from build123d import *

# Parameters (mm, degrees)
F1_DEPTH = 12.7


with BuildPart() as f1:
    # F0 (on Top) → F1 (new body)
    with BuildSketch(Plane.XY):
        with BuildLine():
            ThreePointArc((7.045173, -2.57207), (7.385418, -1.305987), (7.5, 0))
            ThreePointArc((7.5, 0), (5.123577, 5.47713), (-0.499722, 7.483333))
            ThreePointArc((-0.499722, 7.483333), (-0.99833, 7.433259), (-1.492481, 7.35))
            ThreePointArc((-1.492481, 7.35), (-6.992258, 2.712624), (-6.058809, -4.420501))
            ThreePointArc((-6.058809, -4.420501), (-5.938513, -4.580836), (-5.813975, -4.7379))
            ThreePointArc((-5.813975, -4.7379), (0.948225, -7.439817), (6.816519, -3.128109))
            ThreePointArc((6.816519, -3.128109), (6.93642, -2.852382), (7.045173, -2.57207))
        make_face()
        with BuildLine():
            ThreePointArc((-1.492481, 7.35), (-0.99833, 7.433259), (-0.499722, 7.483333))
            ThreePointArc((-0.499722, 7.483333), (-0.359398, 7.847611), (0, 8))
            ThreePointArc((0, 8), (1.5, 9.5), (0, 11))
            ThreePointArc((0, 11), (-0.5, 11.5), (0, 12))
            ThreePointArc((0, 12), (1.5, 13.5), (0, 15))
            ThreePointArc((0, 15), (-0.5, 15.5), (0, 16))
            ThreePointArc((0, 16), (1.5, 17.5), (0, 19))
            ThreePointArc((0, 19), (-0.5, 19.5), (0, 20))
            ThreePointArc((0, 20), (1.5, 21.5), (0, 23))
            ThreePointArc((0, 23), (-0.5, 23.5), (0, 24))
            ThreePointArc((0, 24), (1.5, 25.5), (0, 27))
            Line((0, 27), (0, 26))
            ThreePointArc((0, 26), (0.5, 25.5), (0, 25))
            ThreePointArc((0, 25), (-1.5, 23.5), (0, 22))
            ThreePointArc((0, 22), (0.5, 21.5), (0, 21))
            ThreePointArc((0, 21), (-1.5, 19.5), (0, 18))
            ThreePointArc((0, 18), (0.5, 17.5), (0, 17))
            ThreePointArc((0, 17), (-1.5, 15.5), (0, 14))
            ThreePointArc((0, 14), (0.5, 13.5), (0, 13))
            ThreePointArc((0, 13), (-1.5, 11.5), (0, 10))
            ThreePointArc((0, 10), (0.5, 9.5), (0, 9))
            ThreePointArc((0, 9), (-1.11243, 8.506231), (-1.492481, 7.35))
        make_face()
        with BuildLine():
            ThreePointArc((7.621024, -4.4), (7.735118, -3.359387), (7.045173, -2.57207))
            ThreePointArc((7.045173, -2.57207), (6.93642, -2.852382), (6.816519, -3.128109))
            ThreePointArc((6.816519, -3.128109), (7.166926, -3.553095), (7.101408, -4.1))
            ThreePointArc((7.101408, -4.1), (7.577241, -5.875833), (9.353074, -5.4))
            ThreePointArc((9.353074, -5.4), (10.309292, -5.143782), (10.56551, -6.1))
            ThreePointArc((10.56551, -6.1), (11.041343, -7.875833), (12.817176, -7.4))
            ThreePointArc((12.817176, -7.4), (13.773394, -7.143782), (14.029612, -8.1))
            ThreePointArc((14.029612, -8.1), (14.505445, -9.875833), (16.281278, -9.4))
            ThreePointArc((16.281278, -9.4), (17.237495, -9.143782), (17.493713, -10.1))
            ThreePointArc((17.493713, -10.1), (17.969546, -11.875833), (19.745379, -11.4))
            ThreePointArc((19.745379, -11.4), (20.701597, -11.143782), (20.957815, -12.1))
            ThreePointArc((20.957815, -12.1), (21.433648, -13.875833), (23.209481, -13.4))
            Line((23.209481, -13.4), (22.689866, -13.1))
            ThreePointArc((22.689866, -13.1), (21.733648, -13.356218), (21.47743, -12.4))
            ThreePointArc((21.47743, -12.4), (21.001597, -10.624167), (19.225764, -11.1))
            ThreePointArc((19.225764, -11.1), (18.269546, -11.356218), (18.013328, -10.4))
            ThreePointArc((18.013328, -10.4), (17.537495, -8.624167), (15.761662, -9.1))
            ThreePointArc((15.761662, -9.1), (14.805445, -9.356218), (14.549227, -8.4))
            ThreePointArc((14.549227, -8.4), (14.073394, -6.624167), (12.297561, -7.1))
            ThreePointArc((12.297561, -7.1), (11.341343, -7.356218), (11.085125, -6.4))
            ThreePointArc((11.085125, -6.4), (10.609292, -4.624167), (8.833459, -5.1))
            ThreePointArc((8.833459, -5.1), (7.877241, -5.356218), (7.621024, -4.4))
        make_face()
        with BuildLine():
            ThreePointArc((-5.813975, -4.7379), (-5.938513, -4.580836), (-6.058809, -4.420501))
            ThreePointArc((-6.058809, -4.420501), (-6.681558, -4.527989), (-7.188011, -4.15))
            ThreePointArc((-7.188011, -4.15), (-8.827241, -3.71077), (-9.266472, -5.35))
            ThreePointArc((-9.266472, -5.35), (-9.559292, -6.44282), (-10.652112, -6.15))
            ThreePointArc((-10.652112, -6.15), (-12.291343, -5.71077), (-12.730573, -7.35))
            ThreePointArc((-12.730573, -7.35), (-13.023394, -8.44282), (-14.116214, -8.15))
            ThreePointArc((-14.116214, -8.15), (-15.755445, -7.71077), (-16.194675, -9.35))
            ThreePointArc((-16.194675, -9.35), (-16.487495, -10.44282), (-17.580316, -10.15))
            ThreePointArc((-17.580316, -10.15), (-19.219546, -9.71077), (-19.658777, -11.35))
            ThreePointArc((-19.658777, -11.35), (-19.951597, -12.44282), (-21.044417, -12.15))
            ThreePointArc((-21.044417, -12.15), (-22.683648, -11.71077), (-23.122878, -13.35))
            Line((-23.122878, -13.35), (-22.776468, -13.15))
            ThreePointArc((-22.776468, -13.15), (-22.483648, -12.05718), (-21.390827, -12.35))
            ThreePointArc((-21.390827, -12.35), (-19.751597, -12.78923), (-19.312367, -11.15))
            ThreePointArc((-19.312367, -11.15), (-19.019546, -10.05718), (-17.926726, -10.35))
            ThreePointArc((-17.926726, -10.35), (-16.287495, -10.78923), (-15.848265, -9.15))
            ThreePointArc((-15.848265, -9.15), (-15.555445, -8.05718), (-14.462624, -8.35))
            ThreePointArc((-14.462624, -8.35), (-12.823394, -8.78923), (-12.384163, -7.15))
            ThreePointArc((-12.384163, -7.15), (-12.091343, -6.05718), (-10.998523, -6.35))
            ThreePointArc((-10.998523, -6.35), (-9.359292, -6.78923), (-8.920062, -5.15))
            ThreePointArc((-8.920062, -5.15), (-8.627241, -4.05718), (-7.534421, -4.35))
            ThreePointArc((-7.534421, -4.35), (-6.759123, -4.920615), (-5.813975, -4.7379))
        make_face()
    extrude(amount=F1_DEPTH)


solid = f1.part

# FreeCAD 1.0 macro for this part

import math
import FreeCAD as App
import Part
import Sketcher

V = App.Vector
Q = App.Units.Quantity

doc = App.newDocument("Part")
body = doc.addObject("PartDesign::Body", "Body")

sketch1 = body.newObject("Sketcher::SketchObject", "Sketch")
sketch1.AttachmentSupport = (doc.getObject("XY_Plane"), [""])
sketch1.MapMode = "FlatFace"
sketch1.addGeometry([
    Part.ArcOfCircle(Part.Circle(V(-0.00001, 0, 0), V(0, 0, 1), 7.50001), math.radians(-20.056235), math.radians(-0.000004)),
    Part.ArcOfCircle(Part.Circle(V(0, -0.000001, 0), V(0, 0, 1), 7.5), math.radians(0.000005), math.radians(93.820423)),
    Part.ArcOfCircle(Part.Circle(V(-0.000001, 7.500001, 0), V(0, 0, 1), 0.499999), math.radians(89.9999), math.radians(181.910367)),
    Part.ArcOfCircle(Part.Circle(V(0, 9.5, 0), V(0, 0, 1), 1.5), math.radians(-90), math.radians(90)),
    Part.ArcOfCircle(Part.Circle(V(0, 11.5, 0), V(0, 0, 1), 0.5), math.radians(90), math.radians(270)),
    Part.ArcOfCircle(Part.Circle(V(0, 13.5, 0), V(0, 0, 1), 1.5), math.radians(-90), math.radians(90)),
    Part.ArcOfCircle(Part.Circle(V(0, 15.5, 0), V(0, 0, 1), 0.5), math.radians(90), math.radians(270)),
    Part.ArcOfCircle(Part.Circle(V(0, 17.5, 0), V(0, 0, 1), 1.5), math.radians(-90), math.radians(90)),
    Part.ArcOfCircle(Part.Circle(V(0, 19.5, 0), V(0, 0, 1), 0.5), math.radians(90), math.radians(270)),
    Part.ArcOfCircle(Part.Circle(V(0, 21.5, 0), V(0, 0, 1), 1.5), math.radians(-90), math.radians(90)),
    Part.ArcOfCircle(Part.Circle(V(0, 23.5, 0), V(0, 0, 1), 0.5), math.radians(90), math.radians(270)),
    Part.ArcOfCircle(Part.Circle(V(0, 25.5, 0), V(0, 0, 1), 1.5), math.radians(-90), math.radians(90)),
    Part.LineSegment(V(0, 27, 0), V(0, 26, 0)),
    Part.ArcOfCircle(Part.Circle(V(0, 25.5, 0), V(0, 0, 1), 0.5), math.radians(-90), math.radians(90)),
    Part.ArcOfCircle(Part.Circle(V(0, 23.5, 0), V(0, 0, 1), 1.5), math.radians(90), math.radians(270)),
    Part.ArcOfCircle(Part.Circle(V(0, 21.5, 0), V(0, 0, 1), 0.5), math.radians(-90), math.radians(90)),
    Part.ArcOfCircle(Part.Circle(V(0, 19.5, 0), V(0, 0, 1), 1.5), math.radians(90), math.radians(270)),
    Part.ArcOfCircle(Part.Circle(V(0, 17.5, 0), V(0, 0, 1), 0.5), math.radians(-90), math.radians(90)),
    Part.ArcOfCircle(Part.Circle(V(0, 15.5, 0), V(0, 0, 1), 1.5), math.radians(90), math.radians(270)),
    Part.ArcOfCircle(Part.Circle(V(0, 13.5, 0), V(0, 0, 1), 0.5), math.radians(-90), math.radians(90)),
    Part.ArcOfCircle(Part.Circle(V(0, 11.5, 0), V(0, 0, 1), 1.5), math.radians(90), math.radians(270)),
    Part.ArcOfCircle(Part.Circle(V(0, 9.5, 0), V(0, 0, 1), 0.5), math.radians(-90), math.radians(90)),
    Part.ArcOfCircle(Part.Circle(V(-0.000001, 7.500001, 0), V(0, 0, 1), 1.499999), math.radians(89.999958), math.radians(185.739219)),
    Part.ArcOfCircle(Part.Circle(V(0, 0, 0), V(0, 0, 1), 7.5), math.radians(101.478337), math.radians(216.114457)),
    Part.ArcOfCircle(Part.Circle(V(-6.49519, -3.749999, 0), V(0, 0, 1), 0.800001), math.radians(-149.999948), math.radians(-56.94282)),
    Part.ArcOfCircle(Part.Circle(V(-8.227241, -4.750001, 0), V(0, 0, 1), 1.2), math.radians(30.000032), math.radians(209.999967)),
    Part.ArcOfCircle(Part.Circle(V(-9.959292, -5.75, 0), V(0, 0, 1), 0.8), math.radians(-149.999988), math.radians(30.000012)),
    Part.ArcOfCircle(Part.Circle(V(-11.691342, -6.75, 0), V(0, 0, 1), 1.2), math.radians(30.000008), math.radians(209.999991)),
    Part.ArcOfCircle(Part.Circle(V(-13.423394, -7.749999, 0), V(0, 0, 1), 0.8), math.radians(-149.999957), math.radians(29.999945)),
    Part.ArcOfCircle(Part.Circle(V(-15.155444, -8.75, 0), V(0, 0, 1), 1.2), math.radians(30.000008), math.radians(209.999991)),
    Part.ArcOfCircle(Part.Circle(V(-16.887496, -9.75, 0), V(0, 0, 1), 0.8), math.radians(-149.999993), math.radians(29.999981)),
    Part.ArcOfCircle(Part.Circle(V(-18.619546, -10.750001, 0), V(0, 0, 1), 1.2), math.radians(30.000032), math.radians(209.999967)),
    Part.ArcOfCircle(Part.Circle(V(-20.351597, -11.75, 0), V(0, 0, 1), 0.8), math.radians(-149.999988), math.radians(30.000012)),
    Part.ArcOfCircle(Part.Circle(V(-22.083647, -12.75, 0), V(0, 0, 1), 1.2), math.radians(30.000008), math.radians(209.999991)),
    Part.LineSegment(V(-23.122878, -13.35, 0), V(-22.776468, -13.15, 0)),
    Part.ArcOfCircle(Part.Circle(V(-22.083647, -12.75, 0), V(0, 0, 1), 0.8), math.radians(30.000007), math.radians(209.999981)),
    Part.ArcOfCircle(Part.Circle(V(-20.351597, -11.75, 0), V(0, 0, 1), 1.2), math.radians(-149.999988), math.radians(30.000012)),
    Part.ArcOfCircle(Part.Circle(V(-18.619546, -10.750001, 0), V(0, 0, 1), 0.8), math.radians(30.000043), math.radians(209.999945)),
    Part.ArcOfCircle(Part.Circle(V(-16.887496, -9.75, 0), V(0, 0, 1), 1.2), math.radians(-149.999992), math.radians(29.999991)),
    Part.ArcOfCircle(Part.Circle(V(-15.155444, -8.75, 0), V(0, 0, 1), 0.8), math.radians(30.000007), math.radians(209.999981)),
    Part.ArcOfCircle(Part.Circle(V(-13.423394, -7.749999, 0), V(0, 0, 1), 1.2), math.radians(-149.999968), math.radians(29.999967)),
    Part.ArcOfCircle(Part.Circle(V(-11.691343, -6.75, 0), V(0, 0, 1), 0.8), math.radians(30.000012), math.radians(210.000012)),
    Part.ArcOfCircle(Part.Circle(V(-9.959293, -5.75, 0), V(0, 0, 1), 1.2), math.radians(-149.999992), math.radians(29.999991)),
    Part.ArcOfCircle(Part.Circle(V(-8.227241, -4.750001, 0), V(0, 0, 1), 0.8), math.radians(30.000043), math.radians(209.999945)),
    Part.ArcOfCircle(Part.Circle(V(-6.49519, -3.749999, 0), V(0, 0, 1), 1.200001), math.radians(-149.999979), math.radians(-55.411478)),
    Part.ArcOfCircle(Part.Circle(V(0, -0.000001, 0), V(0, 0, 1), 7.499999), math.radians(-140.822872), math.radians(-24.650441)),
    Part.ArcOfCircle(Part.Circle(V(6.495191, -3.75, 0), V(0, 0, 1), 0.7), math.radians(-30.00005), math.radians(62.674784)),
    Part.ArcOfCircle(Part.Circle(V(8.227241, -4.75, 0), V(0, 0, 1), 1.3), math.radians(149.999999), math.radians(329.999999)),
    Part.ArcOfCircle(Part.Circle(V(9.959292, -5.75, 0), V(0, 0, 1), 0.7), math.radians(-29.999991), math.radians(150.000009)),
    Part.ArcOfCircle(Part.Circle(V(11.691343, -6.75, 0), V(0, 0, 1), 1.3), math.radians(149.999999), math.radians(329.999999)),
    Part.ArcOfCircle(Part.Circle(V(13.423394, -7.75, 0), V(0, 0, 1), 0.7), math.radians(-29.999991), math.radians(150.000009)),
    Part.ArcOfCircle(Part.Circle(V(15.155445, -8.75, 0), V(0, 0, 1), 1.3), math.radians(149.999999), math.radians(329.999999)),
    Part.ArcOfCircle(Part.Circle(V(16.887496, -9.75, 0), V(0, 0, 1), 0.7), math.radians(-30.000027), math.radians(150.000003)),
    Part.ArcOfCircle(Part.Circle(V(18.619546, -10.75, 0), V(0, 0, 1), 1.3), math.radians(149.999999), math.radians(329.999999)),
    Part.ArcOfCircle(Part.Circle(V(20.351597, -11.75, 0), V(0, 0, 1), 0.7), math.radians(-29.999991), math.radians(150.000009)),
    Part.ArcOfCircle(Part.Circle(V(22.083648, -12.75, 0), V(0, 0, 1), 1.3), math.radians(149.999999), math.radians(329.999999)),
    Part.LineSegment(V(23.209481, -13.4, 0), V(22.689866, -13.1, 0)),
    Part.ArcOfCircle(Part.Circle(V(22.083648, -12.75, 0), V(0, 0, 1), 0.7), math.radians(150.000009), math.radians(330.000009)),
    Part.ArcOfCircle(Part.Circle(V(20.351597, -11.75, 0), V(0, 0, 1), 1.3), math.radians(-30.000001), math.radians(149.999999)),
    Part.ArcOfCircle(Part.Circle(V(18.619546, -10.75, 0), V(0, 0, 1), 0.7), math.radians(150.000009), math.radians(330.000009)),
    Part.ArcOfCircle(Part.Circle(V(16.887495, -9.75, 0), V(0, 0, 1), 1.3), math.radians(-30.000001), math.radians(149.999999)),
    Part.ArcOfCircle(Part.Circle(V(15.155444, -8.75, 0), V(0, 0, 1), 0.7), math.radians(149.999973), math.radians(330.000003)),
    Part.ArcOfCircle(Part.Circle(V(13.423394, -7.75, 0), V(0, 0, 1), 1.3), math.radians(-30.000001), math.radians(149.999999)),
    Part.ArcOfCircle(Part.Circle(V(11.691343, -6.75, 0), V(0, 0, 1), 0.7), math.radians(150.000009), math.radians(330.000009)),
    Part.ArcOfCircle(Part.Circle(V(9.959292, -5.75, 0), V(0, 0, 1), 1.3), math.radians(-30.000001), math.radians(149.999999)),
    Part.ArcOfCircle(Part.Circle(V(8.227241, -4.750001, 0), V(0, 0, 1), 0.7), math.radians(149.999932), math.radians(330.000044)),
    Part.ArcOfCircle(Part.Circle(V(6.495189, -3.750001, 0), V(0, 0, 1), 1.300002), math.radians(-29.999913), math.radians(64.971793)),
], False)
sketch1.addConstraint([
    Sketcher.Constraint("Tangent", 0, 2, 1, 1),
    Sketcher.Constraint("Coincident", 1, 2, 2, 2),
    Sketcher.Constraint("Tangent", 2, 1, 3, 1),
    Sketcher.Constraint("Tangent", 3, 2, 4, 2),
    Sketcher.Constraint("Tangent", 4, 1, 5, 1),
    Sketcher.Constraint("Tangent", 5, 2, 6, 2),
    Sketcher.Constraint("Tangent", 6, 1, 7, 1),
    Sketcher.Constraint("Tangent", 7, 2, 8, 2),
    Sketcher.Constraint("Tangent", 8, 1, 9, 1),
    Sketcher.Constraint("Tangent", 9, 2, 10, 2),
    Sketcher.Constraint("Tangent", 10, 1, 11, 1),
    Sketcher.Constraint("Coincident", 11, 2, 12, 1),
    Sketcher.Constraint("Coincident", 12, 2, 13, 2),
    Sketcher.Constraint("Tangent", 13, 1, 14, 1),
    Sketcher.Constraint("Tangent", 14, 2, 15, 2),
    Sketcher.Constraint("Tangent", 15, 1, 16, 1),
    Sketcher.Constraint("Tangent", 16, 2, 17, 2),
    Sketcher.Constraint("Tangent", 17, 1, 18, 1),
    Sketcher.Constraint("Tangent", 18, 2, 19, 2),
    Sketcher.Constraint("Tangent", 19, 1, 20, 1),
    Sketcher.Constraint("Tangent", 20, 2, 21, 2),
    Sketcher.Constraint("Tangent", 21, 1, 22, 1),
    Sketcher.Constraint("Coincident", 22, 2, 23, 1),
    Sketcher.Constraint("Coincident", 23, 2, 24, 2),
    Sketcher.Constraint("Tangent", 24, 1, 25, 1),
    Sketcher.Constraint("Tangent", 25, 2, 26, 2),
    Sketcher.Constraint("Tangent", 26, 1, 27, 1),
    Sketcher.Constraint("Tangent", 27, 2, 28, 2),
    Sketcher.Constraint("Tangent", 28, 1, 29, 1),
    Sketcher.Constraint("Tangent", 29, 2, 30, 2),
    Sketcher.Constraint("Tangent", 30, 1, 31, 1),
    Sketcher.Constraint("Tangent", 31, 2, 32, 2),
    Sketcher.Constraint("Tangent", 32, 1, 33, 1),
    Sketcher.Constraint("Coincident", 33, 2, 34, 1),
    Sketcher.Constraint("Coincident", 34, 2, 35, 2),
    Sketcher.Constraint("Tangent", 35, 1, 36, 1),
    Sketcher.Constraint("Tangent", 36, 2, 37, 2),
    Sketcher.Constraint("Tangent", 37, 1, 38, 1),
    Sketcher.Constraint("Tangent", 38, 2, 39, 2),
    Sketcher.Constraint("Tangent", 39, 1, 40, 1),
    Sketcher.Constraint("Tangent", 40, 2, 41, 2),
    Sketcher.Constraint("Tangent", 41, 1, 42, 1),
    Sketcher.Constraint("Tangent", 42, 2, 43, 2),
    Sketcher.Constraint("Tangent", 43, 1, 44, 1),
    Sketcher.Constraint("Coincident", 44, 2, 45, 1),
    Sketcher.Constraint("Coincident", 45, 2, 46, 2),
    Sketcher.Constraint("Tangent", 46, 1, 47, 1),
    Sketcher.Constraint("Tangent", 47, 2, 48, 2),
    Sketcher.Constraint("Tangent", 48, 1, 49, 1),
    Sketcher.Constraint("Tangent", 49, 2, 50, 2),
    Sketcher.Constraint("Tangent", 50, 1, 51, 1),
    Sketcher.Constraint("Tangent", 51, 2, 52, 2),
    Sketcher.Constraint("Tangent", 52, 1, 53, 1),
    Sketcher.Constraint("Tangent", 53, 2, 54, 2),
    Sketcher.Constraint("Tangent", 54, 1, 55, 1),
    Sketcher.Constraint("Coincident", 55, 2, 56, 1),
    Sketcher.Constraint("Coincident", 56, 2, 57, 2),
    Sketcher.Constraint("Tangent", 57, 1, 58, 1),
    Sketcher.Constraint("Tangent", 58, 2, 59, 2),
    Sketcher.Constraint("Tangent", 59, 1, 60, 1),
    Sketcher.Constraint("Tangent", 60, 2, 61, 2),
    Sketcher.Constraint("Tangent", 61, 1, 62, 1),
    Sketcher.Constraint("Tangent", 62, 2, 63, 2),
    Sketcher.Constraint("Tangent", 63, 1, 64, 1),
    Sketcher.Constraint("Tangent", 64, 2, 65, 2),
    Sketcher.Constraint("Coincident", 65, 1, 66, 1),
    Sketcher.Constraint("Coincident", 66, 2, 0, 1),
    Sketcher.Constraint("Vertical", 12),
    Sketcher.Constraint("Coincident", 0, 3, -1, 1),
    Sketcher.Constraint("Coincident", 23, 3, -1, 1),
    Sketcher.Constraint("Coincident", 45, 3, -1, 1),
    Sketcher.Constraint("Coincident", 13, 3, 11, 3),
    Sketcher.Constraint("Coincident", 14, 3, 10, 3),
    Sketcher.Constraint("Coincident", 15, 3, 9, 3),
    Sketcher.Constraint("Coincident", 16, 3, 8, 3),
    Sketcher.Constraint("Coincident", 17, 3, 7, 3),
    Sketcher.Constraint("Coincident", 18, 3, 6, 3),
    Sketcher.Constraint("Coincident", 19, 3, 5, 3),
    Sketcher.Constraint("Coincident", 20, 3, 4, 3),
    Sketcher.Constraint("Coincident", 21, 3, 3, 3),
    Sketcher.Constraint("Coincident", 22, 3, 2, 3),
    Sketcher.Constraint("Coincident", 35, 3, 33, 3),
    Sketcher.Constraint("Coincident", 36, 3, 32, 3),
    Sketcher.Constraint("Coincident", 37, 3, 31, 3),
    Sketcher.Constraint("Coincident", 38, 3, 30, 3),
    Sketcher.Constraint("Coincident", 39, 3, 29, 3),
    Sketcher.Constraint("Coincident", 40, 3, 28, 3),
    Sketcher.Constraint("Coincident", 41, 3, 27, 3),
    Sketcher.Constraint("Coincident", 42, 3, 26, 3),
    Sketcher.Constraint("Coincident", 43, 3, 25, 3),
    Sketcher.Constraint("Coincident", 44, 3, 24, 3),
    Sketcher.Constraint("Coincident", 57, 3, 55, 3),
    Sketcher.Constraint("Coincident", 58, 3, 54, 3),
    Sketcher.Constraint("Coincident", 59, 3, 53, 3),
    Sketcher.Constraint("Coincident", 60, 3, 52, 3),
    Sketcher.Constraint("Coincident", 61, 3, 51, 3),
    Sketcher.Constraint("Coincident", 62, 3, 50, 3),
    Sketcher.Constraint("Coincident", 63, 3, 49, 3),
    Sketcher.Constraint("Coincident", 64, 3, 48, 3),
    Sketcher.Constraint("Coincident", 65, 3, 47, 3),
    Sketcher.Constraint("Coincident", 66, 3, 46, 3),
    Sketcher.Constraint("Equal", 2, 4),
    Sketcher.Constraint("Equal", 3, 5),
    Sketcher.Constraint("Equal", 4, 6),
    Sketcher.Constraint("Equal", 5, 7),
    Sketcher.Constraint("Equal", 6, 8),
    Sketcher.Constraint("Equal", 7, 9),
    Sketcher.Constraint("Equal", 8, 10),
    Sketcher.Constraint("Equal", 9, 11),
    Sketcher.Constraint("Equal", 10, 13),
    Sketcher.Constraint("Equal", 1, 23),
    Sketcher.Constraint("Equal", 24, 26),
    Sketcher.Constraint("Equal", 25, 27),
    Sketcher.Constraint("Equal", 26, 28),
    Sketcher.Constraint("Equal", 27, 29),
    Sketcher.Constraint("Equal", 28, 30),
    Sketcher.Constraint("Equal", 29, 31),
    Sketcher.Constraint("Equal", 30, 32),
    Sketcher.Constraint("Equal", 31, 33),
    Sketcher.Constraint("Equal", 32, 35),
    Sketcher.Constraint("Equal", 23, 45),
    Sketcher.Constraint("Equal", 46, 48),
    Sketcher.Constraint("Equal", 47, 49),
    Sketcher.Constraint("Equal", 48, 50),
    Sketcher.Constraint("Equal", 49, 51),
    Sketcher.Constraint("Equal", 50, 52),
    Sketcher.Constraint("Equal", 51, 53),
    Sketcher.Constraint("Equal", 52, 54),
    Sketcher.Constraint("Equal", 53, 55),
    Sketcher.Constraint("Equal", 54, 57),
    Sketcher.Constraint("Symmetric", 24, 3, 46, 3, -2),
    Sketcher.Constraint("Symmetric", 25, 3, 47, 3, -2),
    Sketcher.Constraint("PointOnObject", 2, 3, -2),
    Sketcher.Constraint("PointOnObject", 3, 3, -2),
    Sketcher.Constraint("PointOnObject", 4, 3, -2),
    Sketcher.Constraint("PointOnObject", 5, 3, -2),
    Sketcher.Constraint("PointOnObject", 6, 3, -2),
    Sketcher.Constraint("PointOnObject", 7, 3, -2),
    Sketcher.Constraint("PointOnObject", 8, 3, -2),
    Sketcher.Constraint("PointOnObject", 9, 3, -2),
    Sketcher.Constraint("PointOnObject", 10, 3, -2),
    Sketcher.Constraint("PointOnObject", 11, 3, -2),
    Sketcher.Constraint("PointOnObject", 0, 2, -1),
    Sketcher.Constraint("PointOnObject", 11, 2, -2),
    Sketcher.Constraint("Horizontal", 42, 3, 48, 3),
    Sketcher.Constraint("Horizontal", 41, 3, 49, 3),
    Sketcher.Constraint("Horizontal", 40, 3, 50, 3),
    Sketcher.Constraint("Horizontal", 39, 3, 51, 3),
    Sketcher.Constraint("Horizontal", 38, 3, 52, 3),
    Sketcher.Constraint("Horizontal", 37, 3, 53, 3),
    Sketcher.Constraint("Horizontal", 36, 3, 54, 3),
    Sketcher.Constraint("Horizontal", 35, 3, 55, 3),
    Sketcher.Constraint("Vertical", 1, 3, 2, 3),
    Sketcher.Constraint("Radius", 1, 7.5),
    Sketcher.Constraint("Radius", 2, 0.499999),
    Sketcher.Constraint("Radius", 3, 1.5),
    Sketcher.Constraint("Radius", 24, 0.800001),
    Sketcher.Constraint("Radius", 25, 1.2),
    Sketcher.Constraint("Radius", 46, 0.7),
    Sketcher.Constraint("Angle", 34, Q("30.000012 deg")),
    Sketcher.Constraint("Angle", 56, Q("149.999988 deg")),
    Sketcher.Constraint("DistanceY", -1, 1, 2, 1, 8.0),
    Sketcher.Constraint("DistanceY", 46, 1, -1, 1, 4.1),
    Sketcher.Constraint("DistanceY", 47, 2, -1, 1, 5.4),
    Sketcher.Constraint("DistanceY", 48, 1, -1, 1, 6.1),
    Sketcher.Constraint("DistanceY", 49, 2, -1, 1, 7.4),
    Sketcher.Constraint("DistanceY", 50, 1, -1, 1, 8.1),
    Sketcher.Constraint("DistanceY", 51, 2, -1, 1, 9.4),
    Sketcher.Constraint("DistanceY", 52, 1, -1, 1, 10.1),
    Sketcher.Constraint("DistanceY", 53, 2, -1, 1, 11.4),
    Sketcher.Constraint("DistanceY", 54, 1, -1, 1, 12.1),
    Sketcher.Constraint("DistanceY", 55, 2, -1, 1, 13.4),
    Sketcher.Constraint("DistanceY", 57, 1, -1, 1, 12.4),
    Sketcher.Constraint("DistanceY", 65, 1, -1, 1, 4.4),
    Sketcher.Constraint("DistanceY", 33, 2, -1, 1, 13.35),
    Sketcher.Constraint("DistanceY", 23, 2, -1, 1, 4.420501),
])
pad1 = body.newObject("PartDesign::Pad", "Pad")
pad1.Profile = sketch1
pad1.Length = 12.7

doc.recompute()
